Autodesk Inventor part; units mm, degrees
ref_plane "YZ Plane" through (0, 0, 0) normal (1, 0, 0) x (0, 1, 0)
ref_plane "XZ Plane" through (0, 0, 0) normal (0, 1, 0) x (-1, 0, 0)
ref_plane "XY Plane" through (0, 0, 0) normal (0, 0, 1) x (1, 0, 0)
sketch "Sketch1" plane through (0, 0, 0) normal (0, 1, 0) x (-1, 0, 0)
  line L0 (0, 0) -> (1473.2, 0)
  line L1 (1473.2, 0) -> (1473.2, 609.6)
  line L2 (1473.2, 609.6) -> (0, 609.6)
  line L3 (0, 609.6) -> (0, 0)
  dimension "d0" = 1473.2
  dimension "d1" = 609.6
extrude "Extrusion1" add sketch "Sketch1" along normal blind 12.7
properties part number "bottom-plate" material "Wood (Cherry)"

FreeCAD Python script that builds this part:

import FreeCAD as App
import Part
import Sketcher
Q = App.Units.Quantity

doc = App.newDocument("Part")
params = doc.addObject("Spreadsheet::Sheet", "Params")
for row, (alias, value) in enumerate([
    ("sketch1_width", "58 in"),
    ("sketch1_height", "24 in"),
    ("pad1_length", "0.5 in"),
], start=1):
    params.set(f"A{row}", alias)
    params.set(f"B{row}", "=" + value)
    params.setAlias(f"B{row}", alias)

body = doc.addObject("PartDesign::Body", "Body")

# Sketch on XZ plane
sketch1 = body.newObject("Sketcher::SketchObject", "Sketch")
sketch1.AttachmentSupport = (doc.getObject("XZ_Plane"), [""])
sketch1.MapMode = "FlatFace"
sketch1.addGeometry([
    Part.LineSegment(App.Vector(0, 610, 0), App.Vector(0, 0, 0)),
    Part.LineSegment(App.Vector(0, 0, 0), App.Vector(-1473, 0, 0)),
    Part.LineSegment(App.Vector(-1473, 0, 0), App.Vector(-1473, 610, 0)),
    Part.LineSegment(App.Vector(-1473, 610, 0), App.Vector(0, 610, 0)),
], False)
sketch1.addConstraint([
    Sketcher.Constraint("Coincident", 0, 2, 1, 1),
    Sketcher.Constraint("Coincident", 1, 2, 2, 1),
    Sketcher.Constraint("Coincident", 2, 2, 3, 1),
    Sketcher.Constraint("Coincident", 3, 2, 0, 1),
    Sketcher.Constraint("Vertical", 0),
    Sketcher.Constraint("Horizontal", 1),
    Sketcher.Constraint("Vertical", 2),
    Sketcher.Constraint("Horizontal", 3),
    Sketcher.Constraint("Coincident", 0, 2, -1, 1),
    Sketcher.Constraint("DistanceX", 1, 2, 1, 1, Q("58 in")),
    Sketcher.Constraint("DistanceY", 0, 2, 0, 1, Q("24 in")),
])
sketch1.setExpression("Constraints[9]", "Params.sketch1_width")
sketch1.setExpression("Constraints[10]", "Params.sketch1_height")
pad1 = body.newObject("PartDesign::Pad", "Pad")
pad1.Profile = sketch1
pad1.setExpression("Length", "Params.pad1_length")
pad1.Reversed = True

doc.recompute()
